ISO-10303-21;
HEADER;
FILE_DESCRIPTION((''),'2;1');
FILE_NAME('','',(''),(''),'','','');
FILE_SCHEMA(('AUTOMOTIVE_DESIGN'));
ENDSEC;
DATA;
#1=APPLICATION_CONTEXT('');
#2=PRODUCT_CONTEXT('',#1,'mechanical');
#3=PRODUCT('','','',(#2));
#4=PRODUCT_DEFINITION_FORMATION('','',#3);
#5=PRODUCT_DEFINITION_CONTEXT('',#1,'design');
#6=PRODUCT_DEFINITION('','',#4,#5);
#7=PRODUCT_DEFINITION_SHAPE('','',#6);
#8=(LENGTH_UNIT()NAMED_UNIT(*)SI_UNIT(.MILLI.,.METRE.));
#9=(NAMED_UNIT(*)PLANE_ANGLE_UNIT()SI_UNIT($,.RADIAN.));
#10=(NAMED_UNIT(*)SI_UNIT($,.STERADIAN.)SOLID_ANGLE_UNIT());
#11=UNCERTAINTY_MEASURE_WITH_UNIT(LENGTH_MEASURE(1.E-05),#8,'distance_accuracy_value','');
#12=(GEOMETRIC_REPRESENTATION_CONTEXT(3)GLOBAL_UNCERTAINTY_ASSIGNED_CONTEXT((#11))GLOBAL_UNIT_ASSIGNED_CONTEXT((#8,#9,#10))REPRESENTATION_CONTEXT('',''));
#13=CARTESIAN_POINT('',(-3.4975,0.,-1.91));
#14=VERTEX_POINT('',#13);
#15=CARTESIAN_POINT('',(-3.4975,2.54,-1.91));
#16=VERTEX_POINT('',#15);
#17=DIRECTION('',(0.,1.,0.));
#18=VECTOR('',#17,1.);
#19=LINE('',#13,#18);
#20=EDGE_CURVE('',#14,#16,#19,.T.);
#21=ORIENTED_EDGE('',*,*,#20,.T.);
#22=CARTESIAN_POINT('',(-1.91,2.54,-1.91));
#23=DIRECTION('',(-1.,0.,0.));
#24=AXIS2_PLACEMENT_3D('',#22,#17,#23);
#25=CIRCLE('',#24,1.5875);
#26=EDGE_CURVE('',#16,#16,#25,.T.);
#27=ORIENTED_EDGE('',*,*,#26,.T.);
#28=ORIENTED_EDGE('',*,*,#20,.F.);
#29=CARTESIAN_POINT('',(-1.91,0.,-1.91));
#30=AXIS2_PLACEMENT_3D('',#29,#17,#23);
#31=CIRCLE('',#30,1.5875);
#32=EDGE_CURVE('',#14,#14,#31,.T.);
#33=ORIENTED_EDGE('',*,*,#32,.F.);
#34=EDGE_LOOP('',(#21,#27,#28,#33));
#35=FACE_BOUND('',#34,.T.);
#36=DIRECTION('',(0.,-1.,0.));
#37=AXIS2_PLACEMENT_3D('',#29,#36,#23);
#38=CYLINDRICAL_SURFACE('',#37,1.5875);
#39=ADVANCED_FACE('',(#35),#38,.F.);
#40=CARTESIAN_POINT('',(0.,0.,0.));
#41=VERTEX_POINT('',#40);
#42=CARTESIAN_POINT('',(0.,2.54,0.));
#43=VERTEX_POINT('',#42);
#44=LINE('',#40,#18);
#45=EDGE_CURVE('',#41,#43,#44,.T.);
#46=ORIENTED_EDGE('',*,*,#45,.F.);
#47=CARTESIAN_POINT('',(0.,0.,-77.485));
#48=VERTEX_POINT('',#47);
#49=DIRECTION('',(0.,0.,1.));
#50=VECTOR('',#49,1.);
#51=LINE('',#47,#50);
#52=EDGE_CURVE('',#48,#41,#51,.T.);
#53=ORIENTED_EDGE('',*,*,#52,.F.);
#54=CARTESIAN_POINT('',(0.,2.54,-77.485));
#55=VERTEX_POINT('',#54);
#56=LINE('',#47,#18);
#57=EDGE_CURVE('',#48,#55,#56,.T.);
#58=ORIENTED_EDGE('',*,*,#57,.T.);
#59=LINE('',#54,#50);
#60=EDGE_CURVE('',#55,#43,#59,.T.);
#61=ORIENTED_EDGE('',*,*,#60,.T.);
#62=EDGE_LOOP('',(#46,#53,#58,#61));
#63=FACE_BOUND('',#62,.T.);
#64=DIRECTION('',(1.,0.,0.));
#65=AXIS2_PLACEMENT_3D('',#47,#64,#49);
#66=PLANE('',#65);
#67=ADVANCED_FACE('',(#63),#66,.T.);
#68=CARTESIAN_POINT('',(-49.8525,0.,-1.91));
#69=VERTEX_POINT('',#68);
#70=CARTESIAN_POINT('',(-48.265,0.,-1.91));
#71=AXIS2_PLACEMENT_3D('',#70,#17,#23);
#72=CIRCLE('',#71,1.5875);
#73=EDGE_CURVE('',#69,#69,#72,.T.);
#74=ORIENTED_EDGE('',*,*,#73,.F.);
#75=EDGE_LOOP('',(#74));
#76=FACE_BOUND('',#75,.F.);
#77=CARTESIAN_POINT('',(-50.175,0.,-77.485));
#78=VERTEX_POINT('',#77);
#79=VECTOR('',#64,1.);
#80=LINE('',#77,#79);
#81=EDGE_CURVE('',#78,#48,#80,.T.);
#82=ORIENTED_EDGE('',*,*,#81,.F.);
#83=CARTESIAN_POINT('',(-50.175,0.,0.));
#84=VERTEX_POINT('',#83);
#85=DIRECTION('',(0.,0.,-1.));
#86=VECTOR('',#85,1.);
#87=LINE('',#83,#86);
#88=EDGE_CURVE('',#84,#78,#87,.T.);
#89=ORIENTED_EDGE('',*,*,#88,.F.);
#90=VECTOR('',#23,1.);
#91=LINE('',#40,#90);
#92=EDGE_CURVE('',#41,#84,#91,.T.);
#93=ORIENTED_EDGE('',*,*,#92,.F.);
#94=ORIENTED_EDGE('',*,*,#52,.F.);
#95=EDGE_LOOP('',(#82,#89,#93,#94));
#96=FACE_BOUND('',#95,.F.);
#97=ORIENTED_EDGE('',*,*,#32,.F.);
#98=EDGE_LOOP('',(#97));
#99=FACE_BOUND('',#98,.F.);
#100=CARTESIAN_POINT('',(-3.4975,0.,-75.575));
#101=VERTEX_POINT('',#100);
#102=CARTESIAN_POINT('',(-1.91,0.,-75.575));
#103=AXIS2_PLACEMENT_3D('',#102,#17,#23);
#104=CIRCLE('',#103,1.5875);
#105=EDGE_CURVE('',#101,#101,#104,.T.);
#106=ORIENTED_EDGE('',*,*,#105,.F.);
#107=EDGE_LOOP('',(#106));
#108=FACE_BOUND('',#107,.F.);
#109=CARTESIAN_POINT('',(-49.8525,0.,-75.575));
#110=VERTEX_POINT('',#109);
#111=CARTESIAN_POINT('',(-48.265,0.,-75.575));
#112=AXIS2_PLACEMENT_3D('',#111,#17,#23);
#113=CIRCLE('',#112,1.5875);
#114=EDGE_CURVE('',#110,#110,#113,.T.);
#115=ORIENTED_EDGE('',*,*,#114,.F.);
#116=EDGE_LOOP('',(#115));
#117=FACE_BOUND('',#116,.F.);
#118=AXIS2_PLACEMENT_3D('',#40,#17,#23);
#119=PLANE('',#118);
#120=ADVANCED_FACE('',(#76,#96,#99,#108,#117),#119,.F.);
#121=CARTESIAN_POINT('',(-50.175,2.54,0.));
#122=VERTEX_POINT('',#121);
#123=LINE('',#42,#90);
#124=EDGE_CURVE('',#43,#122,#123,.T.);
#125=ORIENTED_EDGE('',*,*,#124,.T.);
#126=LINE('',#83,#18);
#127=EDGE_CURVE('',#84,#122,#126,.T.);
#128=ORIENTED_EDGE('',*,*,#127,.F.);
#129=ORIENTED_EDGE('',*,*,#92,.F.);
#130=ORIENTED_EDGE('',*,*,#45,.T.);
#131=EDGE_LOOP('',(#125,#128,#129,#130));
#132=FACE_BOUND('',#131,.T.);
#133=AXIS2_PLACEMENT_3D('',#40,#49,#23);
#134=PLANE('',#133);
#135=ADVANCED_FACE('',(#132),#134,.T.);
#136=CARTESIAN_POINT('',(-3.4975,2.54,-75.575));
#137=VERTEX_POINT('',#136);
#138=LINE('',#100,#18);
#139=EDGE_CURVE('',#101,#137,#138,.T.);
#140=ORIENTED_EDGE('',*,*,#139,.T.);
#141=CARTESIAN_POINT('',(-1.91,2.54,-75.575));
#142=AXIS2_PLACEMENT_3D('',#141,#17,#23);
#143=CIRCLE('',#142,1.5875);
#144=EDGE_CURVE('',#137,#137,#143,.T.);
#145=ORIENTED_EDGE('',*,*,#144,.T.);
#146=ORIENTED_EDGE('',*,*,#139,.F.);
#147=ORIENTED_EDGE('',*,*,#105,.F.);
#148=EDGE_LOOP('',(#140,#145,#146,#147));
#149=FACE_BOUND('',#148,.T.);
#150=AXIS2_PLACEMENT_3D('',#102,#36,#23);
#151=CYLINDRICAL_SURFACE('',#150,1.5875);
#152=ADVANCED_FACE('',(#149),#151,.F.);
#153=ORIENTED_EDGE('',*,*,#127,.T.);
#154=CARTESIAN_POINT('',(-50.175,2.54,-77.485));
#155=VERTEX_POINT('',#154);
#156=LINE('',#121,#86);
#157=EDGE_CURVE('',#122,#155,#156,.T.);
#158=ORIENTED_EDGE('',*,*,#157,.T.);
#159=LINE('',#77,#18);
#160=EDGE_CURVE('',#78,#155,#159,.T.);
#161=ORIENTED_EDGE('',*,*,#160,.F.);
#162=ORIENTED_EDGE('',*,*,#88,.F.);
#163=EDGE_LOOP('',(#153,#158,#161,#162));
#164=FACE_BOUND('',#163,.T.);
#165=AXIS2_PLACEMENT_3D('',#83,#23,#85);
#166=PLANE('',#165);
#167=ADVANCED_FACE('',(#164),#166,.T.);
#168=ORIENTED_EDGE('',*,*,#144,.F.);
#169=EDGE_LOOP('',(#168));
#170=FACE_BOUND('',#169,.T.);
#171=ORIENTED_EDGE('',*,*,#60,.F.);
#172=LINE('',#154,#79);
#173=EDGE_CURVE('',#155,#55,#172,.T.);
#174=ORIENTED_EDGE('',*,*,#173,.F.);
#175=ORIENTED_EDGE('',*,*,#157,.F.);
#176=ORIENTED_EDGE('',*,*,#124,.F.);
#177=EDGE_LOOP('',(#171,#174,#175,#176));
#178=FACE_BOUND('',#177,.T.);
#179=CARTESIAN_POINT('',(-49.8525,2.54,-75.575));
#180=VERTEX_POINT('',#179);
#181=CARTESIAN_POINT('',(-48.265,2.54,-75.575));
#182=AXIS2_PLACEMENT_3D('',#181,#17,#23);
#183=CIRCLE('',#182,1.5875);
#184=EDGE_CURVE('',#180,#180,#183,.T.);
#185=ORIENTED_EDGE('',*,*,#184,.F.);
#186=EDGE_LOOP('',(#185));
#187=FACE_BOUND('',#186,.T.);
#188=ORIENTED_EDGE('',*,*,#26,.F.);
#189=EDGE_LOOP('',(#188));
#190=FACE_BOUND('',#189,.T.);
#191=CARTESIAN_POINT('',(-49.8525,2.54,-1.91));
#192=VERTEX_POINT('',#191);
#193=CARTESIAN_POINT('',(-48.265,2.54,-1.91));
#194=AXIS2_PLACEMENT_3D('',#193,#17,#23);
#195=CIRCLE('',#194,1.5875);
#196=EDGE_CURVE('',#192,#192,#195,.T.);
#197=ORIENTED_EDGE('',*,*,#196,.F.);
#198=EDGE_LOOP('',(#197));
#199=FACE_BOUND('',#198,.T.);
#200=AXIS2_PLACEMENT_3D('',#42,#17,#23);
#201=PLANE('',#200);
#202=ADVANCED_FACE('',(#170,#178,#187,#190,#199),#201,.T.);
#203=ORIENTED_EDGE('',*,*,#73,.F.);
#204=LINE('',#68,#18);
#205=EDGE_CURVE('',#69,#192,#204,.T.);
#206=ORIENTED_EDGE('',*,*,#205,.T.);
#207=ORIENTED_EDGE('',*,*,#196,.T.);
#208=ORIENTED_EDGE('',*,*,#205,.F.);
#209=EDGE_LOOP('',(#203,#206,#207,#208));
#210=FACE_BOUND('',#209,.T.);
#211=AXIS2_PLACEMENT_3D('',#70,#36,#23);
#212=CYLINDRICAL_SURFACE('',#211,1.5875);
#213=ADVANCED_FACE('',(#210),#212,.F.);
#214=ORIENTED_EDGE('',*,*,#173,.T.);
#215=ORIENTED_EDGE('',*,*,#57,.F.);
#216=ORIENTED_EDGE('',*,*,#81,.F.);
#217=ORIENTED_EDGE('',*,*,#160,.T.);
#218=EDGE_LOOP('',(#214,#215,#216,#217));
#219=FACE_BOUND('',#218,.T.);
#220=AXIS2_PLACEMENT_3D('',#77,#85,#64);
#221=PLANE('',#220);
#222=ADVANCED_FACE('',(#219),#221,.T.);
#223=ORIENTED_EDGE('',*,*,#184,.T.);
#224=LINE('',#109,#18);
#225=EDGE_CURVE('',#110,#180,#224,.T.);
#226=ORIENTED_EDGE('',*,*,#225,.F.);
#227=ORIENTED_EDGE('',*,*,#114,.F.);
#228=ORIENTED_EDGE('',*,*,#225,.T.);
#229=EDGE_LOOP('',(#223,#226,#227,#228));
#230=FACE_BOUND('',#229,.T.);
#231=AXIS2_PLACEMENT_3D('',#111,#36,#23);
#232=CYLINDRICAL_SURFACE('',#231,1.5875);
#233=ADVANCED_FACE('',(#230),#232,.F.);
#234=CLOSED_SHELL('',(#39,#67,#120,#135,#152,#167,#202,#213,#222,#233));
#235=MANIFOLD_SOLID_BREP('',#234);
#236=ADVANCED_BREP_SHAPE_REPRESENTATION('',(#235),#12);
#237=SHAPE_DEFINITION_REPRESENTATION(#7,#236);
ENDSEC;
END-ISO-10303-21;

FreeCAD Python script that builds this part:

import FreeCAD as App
import Part
import Sketcher

V = App.Vector
Q = App.Units.Quantity

doc = App.newDocument("Part")
body = doc.addObject("PartDesign::Body", "Body")

# Sketch on XZ plane
sketch1 = body.newObject("Sketcher::SketchObject", "Sketch")
sketch1.AttachmentSupport = (doc.getObject("XZ_Plane"), [""])
sketch1.MapMode = "FlatFace"
sketch1.addGeometry(Part.LineSegment(V(-50.175, 0, 0), V(0, 0, 0)), False)
sketch1.addGeometry(Part.LineSegment(V(0, 0, 0), V(0, -77.485, 0)), False)
sketch1.addGeometry(Part.LineSegment(V(0, -77.485, 0), V(-50.175, -77.485, 0)), False)
sketch1.addGeometry(Part.LineSegment(V(-50.175, -77.485, 0), V(-50.175, 0, 0)), False)
sketch1.addGeometry(Part.Circle(V(-1.91, -75.575, 0), V(0, 0, 1), 1.5875), False)
sketch1.addGeometry(Part.Circle(V(-48.265, -75.575, 0), V(0, 0, 1), 1.5875), False)
sketch1.addGeometry(Part.Circle(V(-1.91, -1.91, 0), V(0, 0, 1), 1.5875), False)
sketch1.addGeometry(Part.Circle(V(-48.265, -1.91, 0), V(0, 0, 1), 1.5875), False)
sketch1.addConstraint(Sketcher.Constraint("Coincident", 0, 2, 1, 1))
sketch1.addConstraint(Sketcher.Constraint("Coincident", 1, 2, 2, 1))
sketch1.addConstraint(Sketcher.Constraint("Coincident", 2, 2, 3, 1))
sketch1.addConstraint(Sketcher.Constraint("Coincident", 3, 2, 0, 1))
sketch1.addConstraint(Sketcher.Constraint("Horizontal", 0))
sketch1.addConstraint(Sketcher.Constraint("Vertical", 1))
sketch1.addConstraint(Sketcher.Constraint("Horizontal", 2))
sketch1.addConstraint(Sketcher.Constraint("Vertical", 3))
sketch1.addConstraint(Sketcher.Constraint("Coincident", 0, 2, -1, 1))
sketch1.addConstraint(Sketcher.Constraint("Equal", 4, 5))
sketch1.addConstraint(Sketcher.Constraint("Equal", 5, 6))
sketch1.addConstraint(Sketcher.Constraint("Equal", 6, 7))
sketch1.addConstraint(Sketcher.Constraint("Horizontal", 4, 3, 5, 3))
sketch1.addConstraint(Sketcher.Constraint("Horizontal", 6, 3, 7, 3))
sketch1.addConstraint(Sketcher.Constraint("Vertical", 4, 3, 6, 3))
sketch1.addConstraint(Sketcher.Constraint("Vertical", 5, 3, 7, 3))
sketch1.addConstraint(Sketcher.Constraint("Diameter", 4, Q("0.125 in")))
sketch1.addConstraint(Sketcher.Constraint("DistanceX", 0, 1, 0, 2, Q("1.9754 in")))
sketch1.addConstraint(Sketcher.Constraint("DistanceY", 1, 2, 1, 1, Q("3.0506 in")))
sketch1.addConstraint(Sketcher.Constraint("DistanceX", 4, 3, -1, 1, Q("0.0752 in")))
sketch1.addConstraint(Sketcher.Constraint("DistanceY", 6, 3, -1, 1, Q("0.0752 in")))
sketch1.addConstraint(Sketcher.Constraint("DistanceY", 1, 2, 4, 3, Q("0.0752 in")))
sketch1.addConstraint(Sketcher.Constraint("DistanceX", 2, 2, 5, 3, Q("0.0752 in")))
pad1 = body.newObject("PartDesign::Pad", "Pad")
pad1.Profile = sketch1
pad1.Length = Q("0.1 in")
pad1.Reversed = True

doc.recompute()
